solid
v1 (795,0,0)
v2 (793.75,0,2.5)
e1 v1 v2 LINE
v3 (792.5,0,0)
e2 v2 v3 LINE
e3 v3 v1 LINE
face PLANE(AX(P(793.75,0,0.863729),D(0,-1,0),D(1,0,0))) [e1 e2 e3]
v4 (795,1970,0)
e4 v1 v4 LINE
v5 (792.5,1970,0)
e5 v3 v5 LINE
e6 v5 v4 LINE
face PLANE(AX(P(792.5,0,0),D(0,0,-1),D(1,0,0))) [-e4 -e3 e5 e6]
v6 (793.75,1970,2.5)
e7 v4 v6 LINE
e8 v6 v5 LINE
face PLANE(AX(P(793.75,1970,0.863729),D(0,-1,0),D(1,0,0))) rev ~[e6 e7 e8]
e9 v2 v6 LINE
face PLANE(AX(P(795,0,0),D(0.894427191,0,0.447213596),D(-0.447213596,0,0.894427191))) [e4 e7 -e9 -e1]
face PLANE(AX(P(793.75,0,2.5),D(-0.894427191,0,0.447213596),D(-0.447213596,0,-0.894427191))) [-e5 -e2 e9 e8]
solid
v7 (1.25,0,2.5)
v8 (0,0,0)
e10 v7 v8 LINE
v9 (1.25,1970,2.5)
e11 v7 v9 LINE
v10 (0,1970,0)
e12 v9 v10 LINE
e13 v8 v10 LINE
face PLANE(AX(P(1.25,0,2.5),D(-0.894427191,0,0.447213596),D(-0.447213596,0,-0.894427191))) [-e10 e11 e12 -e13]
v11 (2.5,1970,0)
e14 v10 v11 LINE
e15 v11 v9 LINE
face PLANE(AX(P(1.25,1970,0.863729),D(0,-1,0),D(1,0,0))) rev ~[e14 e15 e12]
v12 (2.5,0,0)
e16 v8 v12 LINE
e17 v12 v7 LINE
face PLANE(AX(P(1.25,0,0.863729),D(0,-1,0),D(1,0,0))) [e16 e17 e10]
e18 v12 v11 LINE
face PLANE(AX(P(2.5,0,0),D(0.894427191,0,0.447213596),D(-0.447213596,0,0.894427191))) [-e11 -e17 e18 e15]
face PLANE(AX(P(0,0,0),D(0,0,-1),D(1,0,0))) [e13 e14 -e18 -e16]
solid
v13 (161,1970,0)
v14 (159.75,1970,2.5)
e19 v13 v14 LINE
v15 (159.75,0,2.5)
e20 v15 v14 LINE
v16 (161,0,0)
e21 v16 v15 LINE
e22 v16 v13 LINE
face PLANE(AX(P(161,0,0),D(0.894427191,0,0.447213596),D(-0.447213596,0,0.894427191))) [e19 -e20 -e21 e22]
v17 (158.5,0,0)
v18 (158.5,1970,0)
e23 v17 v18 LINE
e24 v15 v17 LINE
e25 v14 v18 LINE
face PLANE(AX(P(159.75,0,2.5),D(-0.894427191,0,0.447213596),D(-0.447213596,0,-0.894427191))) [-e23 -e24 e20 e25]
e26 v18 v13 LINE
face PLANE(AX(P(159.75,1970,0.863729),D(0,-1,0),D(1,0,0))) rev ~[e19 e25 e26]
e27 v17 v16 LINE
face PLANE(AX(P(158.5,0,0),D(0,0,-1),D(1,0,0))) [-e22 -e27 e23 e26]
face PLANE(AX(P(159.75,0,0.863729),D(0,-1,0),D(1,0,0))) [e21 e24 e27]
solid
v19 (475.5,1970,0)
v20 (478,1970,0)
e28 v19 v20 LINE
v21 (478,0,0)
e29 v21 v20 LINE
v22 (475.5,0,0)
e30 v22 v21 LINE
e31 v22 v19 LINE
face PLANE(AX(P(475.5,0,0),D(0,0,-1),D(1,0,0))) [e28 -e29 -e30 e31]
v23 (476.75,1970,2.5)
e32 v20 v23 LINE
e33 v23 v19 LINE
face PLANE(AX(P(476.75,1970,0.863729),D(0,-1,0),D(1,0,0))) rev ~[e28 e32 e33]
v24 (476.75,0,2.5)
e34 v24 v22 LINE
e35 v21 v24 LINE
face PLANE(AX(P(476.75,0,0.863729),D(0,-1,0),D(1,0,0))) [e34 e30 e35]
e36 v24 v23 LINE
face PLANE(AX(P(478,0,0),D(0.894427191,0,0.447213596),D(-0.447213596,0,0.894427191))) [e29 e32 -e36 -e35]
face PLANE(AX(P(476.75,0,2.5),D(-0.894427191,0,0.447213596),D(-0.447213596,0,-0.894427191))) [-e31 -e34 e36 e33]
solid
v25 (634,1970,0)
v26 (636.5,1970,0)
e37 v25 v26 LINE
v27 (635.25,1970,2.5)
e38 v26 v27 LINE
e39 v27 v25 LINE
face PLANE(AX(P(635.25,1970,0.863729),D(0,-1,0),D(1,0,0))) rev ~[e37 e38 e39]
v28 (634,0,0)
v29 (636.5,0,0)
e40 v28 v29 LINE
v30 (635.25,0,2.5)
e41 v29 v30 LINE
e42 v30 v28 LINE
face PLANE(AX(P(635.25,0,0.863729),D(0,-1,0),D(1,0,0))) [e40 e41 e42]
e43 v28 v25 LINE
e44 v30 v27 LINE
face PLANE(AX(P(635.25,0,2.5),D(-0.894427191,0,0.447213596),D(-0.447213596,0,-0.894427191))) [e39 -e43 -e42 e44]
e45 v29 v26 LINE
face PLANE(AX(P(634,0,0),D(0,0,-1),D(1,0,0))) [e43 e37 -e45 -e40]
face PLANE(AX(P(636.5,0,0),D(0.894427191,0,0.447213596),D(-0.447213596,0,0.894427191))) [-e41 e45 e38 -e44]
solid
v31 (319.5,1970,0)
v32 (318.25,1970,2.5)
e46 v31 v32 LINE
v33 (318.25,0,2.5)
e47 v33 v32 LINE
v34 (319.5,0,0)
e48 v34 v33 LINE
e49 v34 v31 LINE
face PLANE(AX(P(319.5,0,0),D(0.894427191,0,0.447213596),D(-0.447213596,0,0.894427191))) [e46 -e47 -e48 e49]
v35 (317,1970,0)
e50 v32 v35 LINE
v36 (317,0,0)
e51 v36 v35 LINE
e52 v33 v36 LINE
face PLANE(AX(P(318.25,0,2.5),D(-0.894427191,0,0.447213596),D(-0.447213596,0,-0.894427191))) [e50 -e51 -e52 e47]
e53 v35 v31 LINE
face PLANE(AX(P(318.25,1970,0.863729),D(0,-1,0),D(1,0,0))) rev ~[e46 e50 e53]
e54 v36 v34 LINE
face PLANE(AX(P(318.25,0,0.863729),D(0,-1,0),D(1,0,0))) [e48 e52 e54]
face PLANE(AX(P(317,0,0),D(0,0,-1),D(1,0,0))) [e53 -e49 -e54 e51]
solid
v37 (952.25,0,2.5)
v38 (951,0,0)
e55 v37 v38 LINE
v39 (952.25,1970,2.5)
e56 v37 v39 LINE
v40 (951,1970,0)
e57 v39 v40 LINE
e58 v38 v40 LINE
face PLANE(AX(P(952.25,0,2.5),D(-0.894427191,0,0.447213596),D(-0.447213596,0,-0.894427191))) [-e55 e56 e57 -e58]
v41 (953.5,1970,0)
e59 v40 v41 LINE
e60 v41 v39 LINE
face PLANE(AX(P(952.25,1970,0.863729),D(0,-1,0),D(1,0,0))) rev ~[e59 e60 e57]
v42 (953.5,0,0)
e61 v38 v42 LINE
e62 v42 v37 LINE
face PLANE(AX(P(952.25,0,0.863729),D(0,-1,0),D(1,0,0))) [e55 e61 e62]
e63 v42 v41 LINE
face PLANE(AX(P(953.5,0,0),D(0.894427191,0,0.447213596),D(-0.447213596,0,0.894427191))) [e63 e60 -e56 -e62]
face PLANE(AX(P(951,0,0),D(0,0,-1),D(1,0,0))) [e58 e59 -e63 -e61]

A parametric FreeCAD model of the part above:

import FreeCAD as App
import Part
import Sketcher


def add_polygon(sketch, points):
    """Adds a closed chain of lines whose ends are joined by coincident constraints."""
    first, n = sketch.GeometryCount, len(points)
    for a, b in zip(points, points[1:] + points[:1]):
        sketch.addGeometry(Part.LineSegment(App.Vector(*a, 0), App.Vector(*b, 0)), False)
    for i in range(n):
        sketch.addConstraint(Sketcher.Constraint("Coincident", first + i, 2, first + (i + 1) % n, 1))

doc = App.newDocument("Part")
body = doc.addObject("PartDesign::Body", "Body")
body.AllowCompound = True

sketch1 = doc.addObject("Sketcher::SketchObject", "Sketch")
body.addObject(sketch1)
sketch1.AttachmentSupport = (doc.XZ_Plane, [""])
sketch1.MapMode = "FlatFace"
add_polygon(sketch1, [(1.25, 2.5), (0, 0), (2.5, 0)])
sketch1.addConstraint([
    Sketcher.Constraint("Horizontal", 1),
    Sketcher.Constraint("Coincident", 0, 2, -1, 1),
    Sketcher.Constraint("Equal", 0, 2),
    Sketcher.Constraint("DistanceX", 1, 1, 1, 2, 2.5),
    Sketcher.Constraint("DistanceY", -1, 1, 2, 2, 2.5),
])
pad1 = doc.addObject("PartDesign::Pad", "Pad")
body.addObject(pad1)
pad1.Profile = sketch1
pad1.Length = 1970
pad1.Reversed = True

sketch2 = doc.addObject("Sketcher::SketchObject", "Sketch001")
body.addObject(sketch2)
sketch2.AttachmentSupport = (doc.XZ_Plane, [""])
sketch2.MapMode = "FlatFace"
add_polygon(sketch2, [(1.25, 2.5), (0, 0), (2.5, 0)])
add_polygon(sketch2, [(158.5, 0), (161, 0), (159.75, 2.5)])
add_polygon(sketch2, [(317, 0), (319.5, 0), (318.25, 2.5)])
add_polygon(sketch2, [(475.5, 0), (478, 0), (476.75, 2.5)])
add_polygon(sketch2, [(634, 0), (636.5, 0), (635.25, 2.5)])
add_polygon(sketch2, [(792.5, 0), (795, 0), (793.75, 2.5)])
add_polygon(sketch2, [(951, 0), (953.5, 0), (952.25, 2.5)])
sketch2.addConstraint([
    Sketcher.Constraint("Horizontal", 1),
    Sketcher.Constraint("Horizontal", 3),
    Sketcher.Constraint("Horizontal", 6),
    Sketcher.Constraint("Horizontal", 9),
    Sketcher.Constraint("Horizontal", 12),
    Sketcher.Constraint("Horizontal", 15),
    Sketcher.Constraint("Horizontal", 18),
    Sketcher.Constraint("Coincident", 0, 2, -1, 1),
    Sketcher.Constraint("PointOnObject", 3, 2, -1),
    Sketcher.Constraint("PointOnObject", 6, 2, -1),
    Sketcher.Constraint("PointOnObject", 9, 2, -1),
    Sketcher.Constraint("PointOnObject", 12, 2, -1),
    Sketcher.Constraint("PointOnObject", 15, 2, -1),
    Sketcher.Constraint("PointOnObject", 18, 2, -1),
    Sketcher.Constraint("Parallel", 2, 4),
    Sketcher.Constraint("Parallel", 0, 5),
    Sketcher.Constraint("Parallel", 4, 7),
    Sketcher.Constraint("Parallel", 5, 8),
    Sketcher.Constraint("Parallel", 7, 10),
    Sketcher.Constraint("Parallel", 8, 11),
    Sketcher.Constraint("Parallel", 10, 13),
    Sketcher.Constraint("Parallel", 11, 14),
    Sketcher.Constraint("Parallel", 13, 16),
    Sketcher.Constraint("Parallel", 14, 17),
    Sketcher.Constraint("Parallel", 16, 19),
    Sketcher.Constraint("Parallel", 17, 20),
    Sketcher.Constraint("Horizontal", 2, 2, 4, 2),
    Sketcher.Constraint("Horizontal", 4, 2, 7, 2),
    Sketcher.Constraint("Horizontal", 7, 2, 10, 2),
    Sketcher.Constraint("Horizontal", 10, 2, 13, 2),
    Sketcher.Constraint("Horizontal", 13, 2, 16, 2),
    Sketcher.Constraint("Horizontal", 16, 2, 19, 2),
    Sketcher.Constraint("Equal", 0, 2),
    Sketcher.Constraint("DistanceX", 1, 1, 1, 2, 2.5),
    Sketcher.Constraint("DistanceX", -1, 1, 3, 2, 161.0),
    Sketcher.Constraint("DistanceX", -1, 1, 8, 2, 317.0),
    Sketcher.Constraint("DistanceX", -1, 1, 9, 2, 478.0),
    Sketcher.Constraint("DistanceX", -1, 1, 14, 2, 634.0),
    Sketcher.Constraint("DistanceX", -1, 1, 15, 2, 795.0),
    Sketcher.Constraint("DistanceX", -1, 1, 20, 2, 951.0),
    Sketcher.Constraint("DistanceY", -1, 1, 2, 2, 2.5),
])
pad2 = doc.addObject("PartDesign::Pad", "Pad001")
body.addObject(pad2)
pad2.Profile = sketch2
pad2.Length = 1970
pad2.Reversed = True

doc.recompute()
